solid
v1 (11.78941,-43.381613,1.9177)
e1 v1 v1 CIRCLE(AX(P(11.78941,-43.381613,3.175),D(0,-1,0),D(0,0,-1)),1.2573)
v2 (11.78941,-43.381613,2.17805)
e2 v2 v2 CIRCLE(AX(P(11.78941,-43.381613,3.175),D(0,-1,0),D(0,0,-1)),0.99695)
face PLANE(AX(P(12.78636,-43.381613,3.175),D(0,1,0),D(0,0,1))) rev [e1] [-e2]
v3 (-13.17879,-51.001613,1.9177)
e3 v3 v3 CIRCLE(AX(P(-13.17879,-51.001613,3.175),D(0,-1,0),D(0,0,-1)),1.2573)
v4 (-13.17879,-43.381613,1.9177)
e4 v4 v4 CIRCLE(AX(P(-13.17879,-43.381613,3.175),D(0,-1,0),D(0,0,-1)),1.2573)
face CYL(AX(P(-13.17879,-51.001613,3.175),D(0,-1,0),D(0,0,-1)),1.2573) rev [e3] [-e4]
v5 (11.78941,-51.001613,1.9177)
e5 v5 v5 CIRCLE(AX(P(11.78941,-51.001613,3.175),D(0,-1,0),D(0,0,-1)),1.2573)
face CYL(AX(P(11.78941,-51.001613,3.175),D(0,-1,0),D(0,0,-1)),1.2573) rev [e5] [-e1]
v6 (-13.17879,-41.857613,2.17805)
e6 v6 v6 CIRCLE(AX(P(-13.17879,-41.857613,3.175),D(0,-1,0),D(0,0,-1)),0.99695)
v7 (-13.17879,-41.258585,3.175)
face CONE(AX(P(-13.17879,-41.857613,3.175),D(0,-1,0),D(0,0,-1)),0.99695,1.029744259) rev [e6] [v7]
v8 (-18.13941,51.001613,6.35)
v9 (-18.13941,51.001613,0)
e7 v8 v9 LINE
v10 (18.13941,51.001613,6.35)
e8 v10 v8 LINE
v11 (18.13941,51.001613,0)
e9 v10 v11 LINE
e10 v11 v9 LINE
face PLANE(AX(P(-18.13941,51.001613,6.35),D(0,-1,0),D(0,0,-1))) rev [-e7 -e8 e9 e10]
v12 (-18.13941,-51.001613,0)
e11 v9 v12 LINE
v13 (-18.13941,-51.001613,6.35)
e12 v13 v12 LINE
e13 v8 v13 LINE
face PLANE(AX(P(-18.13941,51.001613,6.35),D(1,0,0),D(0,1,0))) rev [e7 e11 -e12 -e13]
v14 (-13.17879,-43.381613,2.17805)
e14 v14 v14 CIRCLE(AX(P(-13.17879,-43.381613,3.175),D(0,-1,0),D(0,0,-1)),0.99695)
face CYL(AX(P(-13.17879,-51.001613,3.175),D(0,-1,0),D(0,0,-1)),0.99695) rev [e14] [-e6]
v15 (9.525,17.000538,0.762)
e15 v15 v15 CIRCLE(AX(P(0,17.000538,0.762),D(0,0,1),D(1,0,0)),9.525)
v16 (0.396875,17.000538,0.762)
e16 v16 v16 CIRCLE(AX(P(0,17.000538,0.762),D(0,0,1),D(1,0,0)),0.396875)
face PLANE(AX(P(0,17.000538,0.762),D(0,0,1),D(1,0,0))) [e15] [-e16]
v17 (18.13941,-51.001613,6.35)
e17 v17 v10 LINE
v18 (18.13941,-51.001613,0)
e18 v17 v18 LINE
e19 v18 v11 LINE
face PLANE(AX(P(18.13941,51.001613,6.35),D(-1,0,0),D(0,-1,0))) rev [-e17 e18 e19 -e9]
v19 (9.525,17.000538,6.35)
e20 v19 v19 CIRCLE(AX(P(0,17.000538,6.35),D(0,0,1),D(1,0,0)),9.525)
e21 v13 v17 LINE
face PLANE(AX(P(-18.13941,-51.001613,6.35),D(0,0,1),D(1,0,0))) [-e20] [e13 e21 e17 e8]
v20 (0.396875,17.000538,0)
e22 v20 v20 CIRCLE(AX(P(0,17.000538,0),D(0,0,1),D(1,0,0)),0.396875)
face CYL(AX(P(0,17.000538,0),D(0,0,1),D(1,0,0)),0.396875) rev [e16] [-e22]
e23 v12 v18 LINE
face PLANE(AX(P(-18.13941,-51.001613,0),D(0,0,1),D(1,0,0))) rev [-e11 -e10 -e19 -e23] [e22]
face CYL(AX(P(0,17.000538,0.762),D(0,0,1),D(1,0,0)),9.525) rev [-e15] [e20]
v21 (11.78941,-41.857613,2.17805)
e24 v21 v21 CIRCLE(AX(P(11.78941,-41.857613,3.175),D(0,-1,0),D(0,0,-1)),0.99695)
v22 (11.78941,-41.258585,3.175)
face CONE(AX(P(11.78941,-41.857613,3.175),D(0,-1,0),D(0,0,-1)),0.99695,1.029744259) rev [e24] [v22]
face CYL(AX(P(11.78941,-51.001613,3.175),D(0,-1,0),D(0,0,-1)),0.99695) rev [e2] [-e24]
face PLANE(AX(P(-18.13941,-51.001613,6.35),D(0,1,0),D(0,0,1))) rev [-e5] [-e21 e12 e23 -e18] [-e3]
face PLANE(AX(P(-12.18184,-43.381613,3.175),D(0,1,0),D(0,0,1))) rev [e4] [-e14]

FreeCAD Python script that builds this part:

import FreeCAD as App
import Part
import Sketcher

V = App.Vector
Q = App.Units.Quantity

doc = App.newDocument("Part")
body = doc.addObject("PartDesign::Body", "Body")

# Sketch on XY plane
sketch1 = body.newObject("Sketcher::SketchObject", "Sketch")
sketch1.AttachmentSupport = (doc.getObject("XY_Plane"), [""])
sketch1.MapMode = "FlatFace"
sketch1.addGeometry([
    Part.LineSegment(V(-18.13941, 51.001613, 0), V(-18.13941, -51.001613, 0)),
    Part.LineSegment(V(-18.13941, -51.001613, 0), V(18.13941, -51.001613, 0)),
    Part.LineSegment(V(18.13941, -51.001613, 0), V(18.13941, 51.001613, 0)),
    Part.LineSegment(V(18.13941, 51.001613, 0), V(-18.13941, 51.001613, 0)),
], False)
sketch1.addConstraint([
    Sketcher.Constraint("Coincident", 0, 2, 1, 1),
    Sketcher.Constraint("Coincident", 1, 2, 2, 1),
    Sketcher.Constraint("Coincident", 2, 2, 3, 1),
    Sketcher.Constraint("Coincident", 3, 2, 0, 1),
    Sketcher.Constraint("Vertical", 0),
    Sketcher.Constraint("Horizontal", 1),
    Sketcher.Constraint("Vertical", 2),
    Sketcher.Constraint("Horizontal", 3),
    Sketcher.Constraint("Symmetric", 0, 2, 2, 2, -1, 1),
    Sketcher.Constraint("DistanceX", 1, 1, 1, 2, Q("1.4283 in")),
    Sketcher.Constraint("DistanceY", 0, 2, 0, 1, Q("102.003225 mm")),
])
pad1 = body.newObject("PartDesign::Pad", "Pad")
pad1.Profile = sketch1
pad1.Length = Q("0.25 in")

# Sketch on XY plane
sketch2 = body.newObject("Sketcher::SketchObject", "Sketch001")
sketch2.AttachmentSupport = (doc.getObject("XY_Plane"), [""])
sketch2.MapMode = "FlatFace"
sketch2.AttachmentOffset = App.Placement(V(0, 0, 0.25 * 25.4), App.Rotation())
sketch2.addGeometry(Part.Circle(V(0, 17.000538, 0), V(0, 0, 1), 9.525), False)
sketch2.addConstraint([
    Sketcher.Constraint("PointOnObject", 0, 3, -2),
    Sketcher.Constraint("Diameter", 0, Q("0.75 in")),
    Sketcher.Constraint("DistanceY", -1, 1, 0, 3, Q("17.000538 mm")),
])
pocket1 = body.newObject("PartDesign::Pocket", "Pocket")
pocket1.Profile = sketch2
pocket1.Length = Q("0.22 in")

# Sketch on XY plane
sketch3 = body.newObject("Sketcher::SketchObject", "Sketch002")
sketch3.AttachmentSupport = (doc.getObject("XY_Plane"), [""])
sketch3.MapMode = "FlatFace"
sketch3.AttachmentOffset = App.Placement(V(0, 0, 0.03 * 25.4), App.Rotation())
sketch3.addGeometry(Part.Circle(V(0, 17.000538, 0), V(0, 0, 1), 0.396875), False)
sketch3.addConstraint([
    Sketcher.Constraint("PointOnObject", 0, 3, -2),
    Sketcher.Constraint("Diameter", 0, Q("0.03125 in")),
    Sketcher.Constraint("DistanceY", -1, 1, 0, 3, Q("17.000538 mm")),
])
pocket2 = body.newObject("PartDesign::Pocket", "Pocket001")
pocket2.Profile = sketch3
pocket2.Type = "ThroughAll"

# Sketch on XZ plane
sketch4 = body.newObject("Sketcher::SketchObject", "Sketch003")
sketch4.AttachmentSupport = (doc.getObject("XZ_Plane"), [""])
sketch4.MapMode = "FlatFace"
sketch4.AttachmentOffset = App.Placement(V(0, 0, 51.001613), App.Rotation())
sketch4.addGeometry([
    Part.Circle(V(11.78941, 3.175, 0), V(0, 0, 1), 0.99695),
    Part.Circle(V(-13.17879, 3.175, 0), V(0, 0, 1), 0.99695),
], False)
sketch4.addConstraint([
    Sketcher.Constraint("Equal", 0, 1),
    Sketcher.Constraint("Horizontal", 0, 3, 1, 3),
    Sketcher.Constraint("Diameter", 0, Q("0.0785 in")),
    Sketcher.Constraint("DistanceY", -1, 1, 0, 3, Q("0.125 in")),
    Sketcher.Constraint("DistanceX", 1, 3, 0, 3, Q("0.983 in")),
    Sketcher.Constraint("DistanceX", -1, 1, 0, 3, Q("11.78941 mm")),
])
doc.recompute()
hole = body.newObject("PartDesign::Hole", "Hole")
hole.Profile = sketch4
hole.ThreadType = "None"
hole.Diameter = Q("0.0785 in")
hole.DepthType = "Dimension"
hole.Depth = Q("0.36 in")
hole.DrillPoint = "Angled"
hole.DrillPointAngle = 118
hole.HoleCutType = "Counterbore"
hole.HoleCutDiameter = Q("0.099 in")
hole.HoleCutDepth = Q("0.3 in")

doc.recompute()
